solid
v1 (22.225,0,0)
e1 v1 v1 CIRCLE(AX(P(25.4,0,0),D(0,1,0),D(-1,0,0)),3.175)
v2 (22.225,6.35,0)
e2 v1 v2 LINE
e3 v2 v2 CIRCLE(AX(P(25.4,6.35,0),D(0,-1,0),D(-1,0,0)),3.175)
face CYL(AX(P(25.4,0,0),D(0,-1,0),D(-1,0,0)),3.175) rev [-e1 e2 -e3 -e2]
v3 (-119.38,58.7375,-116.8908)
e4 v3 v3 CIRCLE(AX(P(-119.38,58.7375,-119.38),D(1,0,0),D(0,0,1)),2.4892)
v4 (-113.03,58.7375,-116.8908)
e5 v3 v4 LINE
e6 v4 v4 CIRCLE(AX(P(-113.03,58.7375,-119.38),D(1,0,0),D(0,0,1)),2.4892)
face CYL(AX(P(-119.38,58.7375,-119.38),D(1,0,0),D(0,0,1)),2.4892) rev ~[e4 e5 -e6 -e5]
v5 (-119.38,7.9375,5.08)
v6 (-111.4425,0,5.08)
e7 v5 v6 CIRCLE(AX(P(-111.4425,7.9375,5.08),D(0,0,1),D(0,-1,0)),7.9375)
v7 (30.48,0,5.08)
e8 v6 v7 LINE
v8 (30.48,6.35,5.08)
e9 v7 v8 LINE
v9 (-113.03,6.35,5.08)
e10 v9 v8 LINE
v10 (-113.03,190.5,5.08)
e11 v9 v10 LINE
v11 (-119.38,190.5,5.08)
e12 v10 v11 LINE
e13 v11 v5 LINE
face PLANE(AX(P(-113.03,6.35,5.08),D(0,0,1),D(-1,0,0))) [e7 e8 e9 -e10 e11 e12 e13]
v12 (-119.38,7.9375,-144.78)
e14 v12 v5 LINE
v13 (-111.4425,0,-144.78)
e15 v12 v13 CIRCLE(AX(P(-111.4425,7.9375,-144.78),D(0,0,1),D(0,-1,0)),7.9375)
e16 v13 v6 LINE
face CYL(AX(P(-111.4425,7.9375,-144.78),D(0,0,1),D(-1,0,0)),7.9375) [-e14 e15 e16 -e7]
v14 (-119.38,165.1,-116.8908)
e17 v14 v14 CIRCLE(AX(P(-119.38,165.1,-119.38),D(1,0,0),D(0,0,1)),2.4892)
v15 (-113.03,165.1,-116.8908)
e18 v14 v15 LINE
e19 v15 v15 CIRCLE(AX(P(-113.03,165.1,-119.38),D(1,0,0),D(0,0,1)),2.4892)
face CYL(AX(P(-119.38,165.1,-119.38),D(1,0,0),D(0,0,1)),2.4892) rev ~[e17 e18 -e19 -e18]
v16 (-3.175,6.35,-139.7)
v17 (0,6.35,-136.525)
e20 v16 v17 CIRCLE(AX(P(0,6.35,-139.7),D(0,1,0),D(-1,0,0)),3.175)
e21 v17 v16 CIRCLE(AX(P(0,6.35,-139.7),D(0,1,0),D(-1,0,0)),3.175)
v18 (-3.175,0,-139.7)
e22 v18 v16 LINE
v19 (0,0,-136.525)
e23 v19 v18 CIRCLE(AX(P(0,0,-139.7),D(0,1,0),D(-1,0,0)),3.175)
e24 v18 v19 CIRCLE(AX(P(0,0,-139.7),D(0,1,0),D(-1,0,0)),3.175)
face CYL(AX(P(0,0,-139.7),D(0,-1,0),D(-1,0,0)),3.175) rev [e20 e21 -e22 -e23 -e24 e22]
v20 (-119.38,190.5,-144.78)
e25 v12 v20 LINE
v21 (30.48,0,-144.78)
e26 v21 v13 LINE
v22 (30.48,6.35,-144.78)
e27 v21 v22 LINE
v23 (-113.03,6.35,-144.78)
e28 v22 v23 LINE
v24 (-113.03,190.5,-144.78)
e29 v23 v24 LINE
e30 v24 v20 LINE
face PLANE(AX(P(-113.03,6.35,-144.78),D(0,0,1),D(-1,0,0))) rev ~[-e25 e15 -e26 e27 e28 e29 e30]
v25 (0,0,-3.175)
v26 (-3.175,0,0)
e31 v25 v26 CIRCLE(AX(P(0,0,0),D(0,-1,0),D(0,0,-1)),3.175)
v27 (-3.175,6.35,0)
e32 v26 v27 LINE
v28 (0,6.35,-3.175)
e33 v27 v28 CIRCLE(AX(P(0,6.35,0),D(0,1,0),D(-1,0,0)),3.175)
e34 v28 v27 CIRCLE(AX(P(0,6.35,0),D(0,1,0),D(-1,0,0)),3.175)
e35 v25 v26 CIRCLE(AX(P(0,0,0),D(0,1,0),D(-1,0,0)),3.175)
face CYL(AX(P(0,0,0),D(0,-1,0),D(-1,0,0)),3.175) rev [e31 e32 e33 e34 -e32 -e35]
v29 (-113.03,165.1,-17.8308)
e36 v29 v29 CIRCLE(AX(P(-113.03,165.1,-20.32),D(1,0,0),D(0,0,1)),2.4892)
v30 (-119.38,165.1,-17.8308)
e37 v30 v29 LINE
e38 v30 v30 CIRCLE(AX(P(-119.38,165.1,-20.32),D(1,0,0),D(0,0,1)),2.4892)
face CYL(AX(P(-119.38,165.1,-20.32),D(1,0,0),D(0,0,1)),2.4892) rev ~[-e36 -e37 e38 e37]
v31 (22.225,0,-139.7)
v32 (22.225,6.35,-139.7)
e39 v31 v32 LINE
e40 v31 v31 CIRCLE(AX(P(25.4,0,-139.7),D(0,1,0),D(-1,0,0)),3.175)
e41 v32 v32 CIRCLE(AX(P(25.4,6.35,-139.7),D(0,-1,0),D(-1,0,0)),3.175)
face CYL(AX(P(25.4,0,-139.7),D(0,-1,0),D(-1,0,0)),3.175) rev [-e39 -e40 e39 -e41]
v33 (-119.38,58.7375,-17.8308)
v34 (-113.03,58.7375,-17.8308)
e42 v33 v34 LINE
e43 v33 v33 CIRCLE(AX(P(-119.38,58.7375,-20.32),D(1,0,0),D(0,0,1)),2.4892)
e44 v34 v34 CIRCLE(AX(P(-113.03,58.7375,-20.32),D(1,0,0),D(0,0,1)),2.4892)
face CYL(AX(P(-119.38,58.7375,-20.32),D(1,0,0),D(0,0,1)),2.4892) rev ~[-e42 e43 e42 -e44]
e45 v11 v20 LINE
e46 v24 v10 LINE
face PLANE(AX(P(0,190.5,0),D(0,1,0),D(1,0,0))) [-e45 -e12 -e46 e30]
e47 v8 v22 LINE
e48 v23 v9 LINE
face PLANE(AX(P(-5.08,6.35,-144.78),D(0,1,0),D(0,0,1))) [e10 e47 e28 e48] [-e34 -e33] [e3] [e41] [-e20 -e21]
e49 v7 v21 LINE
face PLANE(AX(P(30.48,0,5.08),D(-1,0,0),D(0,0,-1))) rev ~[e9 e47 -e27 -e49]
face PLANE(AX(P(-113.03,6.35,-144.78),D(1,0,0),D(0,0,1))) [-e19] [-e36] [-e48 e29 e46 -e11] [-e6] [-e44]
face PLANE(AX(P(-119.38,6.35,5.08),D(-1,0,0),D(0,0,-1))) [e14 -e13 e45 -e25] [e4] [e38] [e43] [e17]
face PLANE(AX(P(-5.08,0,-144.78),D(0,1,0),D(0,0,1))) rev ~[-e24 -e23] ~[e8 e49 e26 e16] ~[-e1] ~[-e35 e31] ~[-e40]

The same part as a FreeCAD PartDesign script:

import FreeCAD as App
import Part
import Sketcher
from FreeCAD import Vector
Q = App.Units.Quantity


def edges_at(feature, points):
    """Names of the edges that pass closest to the given points."""
    edges = feature.Shape.Edges
    near = lambda p: min(range(len(edges)), key=lambda i: edges[i].distToShape(Part.Vertex(*p))[0])
    return sorted({f"Edge{near(p) + 1}" for p in points})

doc = App.newDocument("Part")
params = doc.addObject("Spreadsheet::Sheet", "Params")
for row, (alias, value) in enumerate([
    ("sketch1_diameter", "0.25 in"),
    ("pad1_length", "0.25 in"),
    ("sketch2_height", "5.9 in"),
    ("sketch2_width", "0.25 in"),
    ("pad2_length", "4.5 in"),
    ("sketch3_width", "0.25 in"),
    ("sketch3_height", "5.9 in"),
    ("pad3_length", "7.25 in"),
    ("fillet_radius", "0.3125 in"),
    ("sketch4_diameter", "0.196 in"),
    ("hole_diameter", "0.196 in"),
    ("hole_depth", "0.75 in"),
], start=1):
    params.set(f"A{row}", alias)
    params.set(f"B{row}", "=" + value)
    params.setAlias(f"B{row}", alias)

body = doc.addObject("PartDesign::Body", "Body")

# Sketch on XZ plane
sketch1 = body.newObject("Sketcher::SketchObject", "Sketch")
sketch1.AttachmentSupport = (doc.getObject("XZ_Plane"), [""])
sketch1.MapMode = "FlatFace"
sketch1.addGeometry([
    Part.LineSegment(Vector(-5.1, 5.1, 0), Vector(30.5, 5.1, 0)),  # 0
    Part.LineSegment(Vector(30.5, 5.1, 0), Vector(30.5, -144.8, 0)),  # 1
    Part.LineSegment(Vector(30.5, -144.8, 0), Vector(-5.1, -144.8, 0)),  # 2
    Part.LineSegment(Vector(-5.1, -144.8, 0), Vector(-5.1, 5.1, 0)),  # 3
    Part.Circle(Vector(0, 0, 0), Vector(0, 0, 1), 3.2),  # 4
    Part.Circle(Vector(25.4, -139.7, 0), Vector(0, 0, 1), 3.2),  # 5
    Part.Circle(Vector(25.4, 0, 0), Vector(0, 0, 1), 3.2),  # 6
    Part.Circle(Vector(0, -139.7, 0), Vector(0, 0, 1), 3.2),  # 7
], False)
sketch1.addConstraint([
    Sketcher.Constraint("Coincident", 0, 2, 1, 1),
    Sketcher.Constraint("Coincident", 1, 2, 2, 1),
    Sketcher.Constraint("Coincident", 2, 2, 3, 1),
    Sketcher.Constraint("Coincident", 3, 2, 0, 1),
    Sketcher.Constraint("Horizontal", 0),
    Sketcher.Constraint("Vertical", 1),
    Sketcher.Constraint("Horizontal", 2),
    Sketcher.Constraint("Vertical", 3),
    Sketcher.Constraint("Coincident", 4, 3, -1, 1),
    Sketcher.Constraint("Equal", 4, 5),
    Sketcher.Constraint("Equal", 5, 6),
    Sketcher.Constraint("Equal", 6, 7),
    Sketcher.Constraint("PointOnObject", 6, 3, -1),
    Sketcher.Constraint("PointOnObject", 7, 3, -2),
    Sketcher.Constraint("Horizontal", 5, 3, 7, 3),
    Sketcher.Constraint("Vertical", 5, 3, 6, 3),
    Sketcher.Constraint("Diameter", 4, Q("0.25 in")),
    Sketcher.Constraint("DistanceX", -1, 1, 5, 3, Q("1 in")),
    Sketcher.Constraint("DistanceY", 5, 3, -1, 1, Q("5.5 in")),
    Sketcher.Constraint("DistanceY", -1, 1, 0, 2, Q("0.2 in")),
    Sketcher.Constraint("DistanceX", 2, 2, -1, 1, Q("0.2 in")),
    Sketcher.Constraint("DistanceX", 6, 3, 0, 2, Q("0.2 in")),
    Sketcher.Constraint("DistanceY", 1, 2, 5, 3, Q("0.2 in")),
])
sketch1.setExpression("Constraints[16]", "Params.sketch1_diameter")
pad1 = body.newObject("PartDesign::Pad", "Pad")
pad1.Profile = sketch1
pad1.setExpression("Length", "Params.pad1_length")
pad1.Reversed = True

# Sketch on YZ plane
sketch2 = body.newObject("Sketcher::SketchObject", "Sketch001")
sketch2.AttachmentSupport = (doc.getObject("YZ_Plane"), [""])
sketch2.MapMode = "FlatFace"
sketch2.AttachmentOffset = App.Placement(Vector(0, 0, -0.2 * 25.4), App.Rotation())
sketch2.addGeometry([
    Part.LineSegment(Vector(6, 5, 0), Vector(6, -145, 0)),
    Part.LineSegment(Vector(6, -145, 0), Vector(0, -145, 0)),
    Part.LineSegment(Vector(0, -145, 0), Vector(0, 5, 0)),
    Part.LineSegment(Vector(0, 5, 0), Vector(6, 5, 0)),
], False)
sketch2.addConstraint([
    Sketcher.Constraint("Coincident", 0, 2, 1, 1),
    Sketcher.Constraint("Coincident", 1, 2, 2, 1),
    Sketcher.Constraint("Coincident", 2, 2, 3, 1),
    Sketcher.Constraint("Coincident", 3, 2, 0, 1),
    Sketcher.Constraint("Vertical", 0),
    Sketcher.Constraint("Horizontal", 1),
    Sketcher.Constraint("Vertical", 2),
    Sketcher.Constraint("Horizontal", 3),
    Sketcher.Constraint("PointOnObject", 1, 2, -2),
    Sketcher.Constraint("DistanceY", 0, 2, 0, 1, Q("5.9 in")),
    Sketcher.Constraint("DistanceX", 1, 2, 1, 1, Q("0.25 in")),
    Sketcher.Constraint("DistanceY", 0, 2, -1, 1, Q("5.7 in")),
])
sketch2.setExpression("Constraints[9]", "Params.sketch2_height")
sketch2.setExpression("Constraints[10]", "Params.sketch2_width")
pad2 = body.newObject("PartDesign::Pad", "Pad001")
pad2.Profile = sketch2
pad2.setExpression("Length", "Params.pad2_length")
pad2.Reversed = True

# Sketch on XZ plane
sketch3 = body.newObject("Sketcher::SketchObject", "Sketch002")
sketch3.AttachmentSupport = (doc.getObject("XZ_Plane"), [""])
sketch3.MapMode = "FlatFace"
sketch3.AttachmentOffset = App.Placement(Vector(0, 0, -0.25 * 25.4), App.Rotation())
sketch3.addGeometry([
    Part.LineSegment(Vector(-113, 5, 0), Vector(-113, -145, 0)),
    Part.LineSegment(Vector(-113, -145, 0), Vector(-119, -145, 0)),
    Part.LineSegment(Vector(-119, -145, 0), Vector(-119, 5, 0)),
    Part.LineSegment(Vector(-119, 5, 0), Vector(-113, 5, 0)),
], False)
sketch3.addConstraint([
    Sketcher.Constraint("Coincident", 0, 2, 1, 1),
    Sketcher.Constraint("Coincident", 1, 2, 2, 1),
    Sketcher.Constraint("Coincident", 2, 2, 3, 1),
    Sketcher.Constraint("Coincident", 3, 2, 0, 1),
    Sketcher.Constraint("Vertical", 0),
    Sketcher.Constraint("Horizontal", 1),
    Sketcher.Constraint("Vertical", 2),
    Sketcher.Constraint("Horizontal", 3),
    Sketcher.Constraint("DistanceX", 1, 2, 1, 1, Q("0.25 in")),
    Sketcher.Constraint("DistanceY", 0, 2, 0, 1, Q("5.9 in")),
    Sketcher.Constraint("DistanceY", 0, 2, -1, 1, Q("5.7 in")),
    Sketcher.Constraint("DistanceX", 1, 2, -1, 1, Q("4.7 in")),
])
sketch3.setExpression("Constraints[8]", "Params.sketch3_width")
sketch3.setExpression("Constraints[9]", "Params.sketch3_height")
pad3 = body.newObject("PartDesign::Pad", "Pad002")
pad3.Profile = sketch3
pad3.setExpression("Length", "Params.pad3_length")
pad3.Reversed = True
doc.recompute()

fillet = body.newObject("PartDesign::Fillet", "Fillet")
fillet.Base = (pad3, edges_at(pad3, [(-119.38, 0, -69.85)]))
fillet.setExpression("Radius", "Params.fillet_radius")

# Sketch on YZ plane
sketch4 = body.newObject("Sketcher::SketchObject", "Sketch003")
sketch4.AttachmentSupport = (doc.getObject("YZ_Plane"), [""])
sketch4.MapMode = "FlatFace"
sketch4.AttachmentOffset = App.Placement(Vector(0, 0, -4.7 * 25.4), App.Rotation())
sketch4.addGeometry([
    Part.Circle(Vector(165.1, -119.4, 0), Vector(0, 0, 1), 2.5),
    Part.Circle(Vector(165.1, -20.3, 0), Vector(0, 0, 1), 2.5),
    Part.Circle(Vector(58.7, -119.4, 0), Vector(0, 0, 1), 2.5),
    Part.Circle(Vector(58.7, -20.3, 0), Vector(0, 0, 1), 2.5),
], False)
sketch4.addConstraint([
    Sketcher.Constraint("Equal", 0, 1),
    Sketcher.Constraint("Equal", 1, 2),
    Sketcher.Constraint("Equal", 2, 3),
    Sketcher.Constraint("Horizontal", 0, 3, 2, 3),
    Sketcher.Constraint("Horizontal", 1, 3, 3, 3),
    Sketcher.Constraint("Vertical", 0, 3, 1, 3),
    Sketcher.Constraint("Vertical", 2, 3, 3, 3),
    Sketcher.Constraint("Diameter", 0, Q("0.196 in")),
    Sketcher.Constraint("DistanceX", -1, 1, 0, 3, Q("6.5 in")),
    Sketcher.Constraint("DistanceY", 0, 3, -1, 1, Q("4.7 in")),
    Sketcher.Constraint("DistanceY", 1, 3, -1, 1, Q("0.8 in")),
    Sketcher.Constraint("DistanceX", -1, 1, 2, 3, Q("2.3125 in")),
])
sketch4.setExpression("Constraints[7]", "Params.sketch4_diameter")
doc.recompute()
hole = body.newObject("PartDesign::Hole", "Hole")
hole.Profile = sketch4
hole.ThreadType = "None"
hole.setExpression("Diameter", "Params.hole_diameter")
hole.DepthType = "Dimension"
hole.setExpression("Depth", "Params.hole_depth")
hole.DrillPoint = "Angled"
hole.DrillPointAngle = 118
hole.Reversed = True

doc.recompute()
